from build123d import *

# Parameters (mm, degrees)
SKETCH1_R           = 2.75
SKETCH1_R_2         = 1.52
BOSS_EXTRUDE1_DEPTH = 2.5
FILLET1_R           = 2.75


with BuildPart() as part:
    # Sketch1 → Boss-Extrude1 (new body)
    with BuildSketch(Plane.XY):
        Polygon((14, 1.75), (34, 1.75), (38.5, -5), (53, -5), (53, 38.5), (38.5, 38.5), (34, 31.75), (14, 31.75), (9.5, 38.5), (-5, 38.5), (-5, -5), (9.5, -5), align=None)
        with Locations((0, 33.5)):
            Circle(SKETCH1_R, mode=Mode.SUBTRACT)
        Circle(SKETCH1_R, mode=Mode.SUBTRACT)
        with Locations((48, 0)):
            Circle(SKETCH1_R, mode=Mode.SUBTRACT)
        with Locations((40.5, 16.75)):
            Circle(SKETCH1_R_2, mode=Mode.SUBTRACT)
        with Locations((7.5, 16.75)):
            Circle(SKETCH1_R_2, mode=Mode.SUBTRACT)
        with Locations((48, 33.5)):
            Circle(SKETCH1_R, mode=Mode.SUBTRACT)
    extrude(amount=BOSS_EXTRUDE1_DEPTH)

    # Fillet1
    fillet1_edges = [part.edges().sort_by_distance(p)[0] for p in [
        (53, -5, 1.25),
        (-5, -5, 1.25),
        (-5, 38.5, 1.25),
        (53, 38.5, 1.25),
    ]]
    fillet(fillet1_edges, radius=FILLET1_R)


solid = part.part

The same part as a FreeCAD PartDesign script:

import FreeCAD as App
import Part
import Sketcher
from FreeCAD import Vector


def edges_at(feature, points):
    """Names of the edges that pass closest to the given points."""
    edges = feature.Shape.Edges
    near = lambda p: min(range(len(edges)), key=lambda i: edges[i].distToShape(Part.Vertex(*p))[0])
    return sorted({f"Edge{near(p) + 1}" for p in points})

doc = App.newDocument("Part")
params = doc.addObject("Spreadsheet::Sheet", "Params")
for row, (alias, value) in enumerate([
    ("sketch1_diameter", "5.5 mm"),
    ("sketch1_diameter2", "3.04 mm"),
    ("sketch1_width", "20 mm"),
    ("sketch1_width2", "14.5 mm"),
    ("sketch1_height", "43.5 mm"),
    ("pad1_length", "2.5 mm"),
    ("fillet_radius", "2.75 mm"),
], start=1):
    params.set(f"A{row}", alias)
    params.set(f"B{row}", "=" + value)
    params.setAlias(f"B{row}", alias)

body = doc.addObject("PartDesign::Body", "Body")

# Sketch on XY plane
sketch1 = doc.addObject("Sketcher::SketchObject", "Sketch")
body.addObject(sketch1)
sketch1.AttachmentSupport = (doc.XY_Plane, [""])
sketch1.MapMode = "FlatFace"
sketch1.addGeometry(Part.LineSegment(Vector(14, 1.75, 0), Vector(34, 1.75, 0)), False)
sketch1.addGeometry(Part.LineSegment(Vector(34, 1.75, 0), Vector(38.5, -5, 0)), False)
sketch1.addGeometry(Part.LineSegment(Vector(38.5, -5, 0), Vector(53, -5, 0)), False)
sketch1.addGeometry(Part.LineSegment(Vector(53, -5, 0), Vector(53, 38.5, 0)), False)
sketch1.addGeometry(Part.LineSegment(Vector(53, 38.5, 0), Vector(38.5, 38.5, 0)), False)
sketch1.addGeometry(Part.LineSegment(Vector(38.5, 38.5, 0), Vector(34, 31.75, 0)), False)
sketch1.addGeometry(Part.LineSegment(Vector(34, 31.75, 0), Vector(14, 31.75, 0)), False)
sketch1.addGeometry(Part.LineSegment(Vector(14, 31.75, 0), Vector(9.5, 38.5, 0)), False)
sketch1.addGeometry(Part.LineSegment(Vector(9.5, 38.5, 0), Vector(-5, 38.5, 0)), False)
sketch1.addGeometry(Part.LineSegment(Vector(-5, 38.5, 0), Vector(-5, -5, 0)), False)
sketch1.addGeometry(Part.LineSegment(Vector(-5, -5, 0), Vector(9.5, -5, 0)), False)
sketch1.addGeometry(Part.LineSegment(Vector(9.5, -5, 0), Vector(14, 1.75, 0)), False)
sketch1.addGeometry(Part.Circle(Vector(0, 0, 0), Vector(0, 0, 1), 2.75), False)
sketch1.addGeometry(Part.Circle(Vector(48, 0, 0), Vector(0, 0, 1), 2.75), False)
sketch1.addGeometry(Part.Circle(Vector(7.5, 16.75, 0), Vector(0, 0, 1), 1.52), False)
sketch1.addGeometry(Part.Circle(Vector(0, 33.5, 0), Vector(0, 0, 1), 2.75), False)
sketch1.addGeometry(Part.Circle(Vector(40.5, 16.75, 0), Vector(0, 0, 1), 1.52), False)
sketch1.addGeometry(Part.Circle(Vector(48, 33.5, 0), Vector(0, 0, 1), 2.75), False)
sketch1.addConstraint(Sketcher.Constraint("Coincident", 0, 2, 1, 1))
sketch1.addConstraint(Sketcher.Constraint("Coincident", 1, 2, 2, 1))
sketch1.addConstraint(Sketcher.Constraint("Coincident", 2, 2, 3, 1))
sketch1.addConstraint(Sketcher.Constraint("Coincident", 3, 2, 4, 1))
sketch1.addConstraint(Sketcher.Constraint("Coincident", 4, 2, 5, 1))
sketch1.addConstraint(Sketcher.Constraint("Coincident", 5, 2, 6, 1))
sketch1.addConstraint(Sketcher.Constraint("Coincident", 6, 2, 7, 1))
sketch1.addConstraint(Sketcher.Constraint("Coincident", 7, 2, 8, 1))
sketch1.addConstraint(Sketcher.Constraint("Coincident", 8, 2, 9, 1))
sketch1.addConstraint(Sketcher.Constraint("Coincident", 9, 2, 10, 1))
sketch1.addConstraint(Sketcher.Constraint("Coincident", 10, 2, 11, 1))
sketch1.addConstraint(Sketcher.Constraint("Coincident", 11, 2, 0, 1))
sketch1.addConstraint(Sketcher.Constraint("Horizontal", 0))
sketch1.addConstraint(Sketcher.Constraint("Horizontal", 2))
sketch1.addConstraint(Sketcher.Constraint("Vertical", 3))
sketch1.addConstraint(Sketcher.Constraint("Horizontal", 4))
sketch1.addConstraint(Sketcher.Constraint("Horizontal", 6))
sketch1.addConstraint(Sketcher.Constraint("Horizontal", 8))
sketch1.addConstraint(Sketcher.Constraint("Vertical", 9))
sketch1.addConstraint(Sketcher.Constraint("Horizontal", 10))
sketch1.addConstraint(Sketcher.Constraint("Coincident", 12, 3, -1, 1))
sketch1.addConstraint(Sketcher.Constraint("Equal", 12, 13))
sketch1.addConstraint(Sketcher.Constraint("Equal", 13, 15))
sketch1.addConstraint(Sketcher.Constraint("Equal", 14, 16))
sketch1.addConstraint(Sketcher.Constraint("Equal", 15, 17))
sketch1.addConstraint(Sketcher.Constraint("PointOnObject", 13, 3, -1))
sketch1.addConstraint(Sketcher.Constraint("PointOnObject", 15, 3, -2))
sketch1.addConstraint(Sketcher.Constraint("Parallel", 1, 7))
sketch1.addConstraint(Sketcher.Constraint("Parallel", 5, 11))
sketch1.addConstraint(Sketcher.Constraint("Horizontal", 14, 3, 16, 3))
sketch1.addConstraint(Sketcher.Constraint("Horizontal", 15, 3, 17, 3))
sketch1.addConstraint(Sketcher.Constraint("Horizontal", 4, 2, 7, 2))
sketch1.addConstraint(Sketcher.Constraint("Horizontal", 2, 2, 9, 2))
sketch1.addConstraint(Sketcher.Constraint("Vertical", 13, 3, 17, 3))
sketch1.addConstraint(Sketcher.Constraint("Vertical", 1, 2, 4, 2))
sketch1.addConstraint(Sketcher.Constraint("Vertical", 0, 2, 5, 2))
sketch1.addConstraint(Sketcher.Constraint("Vertical", 7, 2, 10, 2))
sketch1.addConstraint(Sketcher.Constraint("Vertical", 6, 2, 11, 2))
sketch1.addConstraint(Sketcher.Constraint("Equal", 4, 8))
sketch1.addConstraint(Sketcher.Constraint("Diameter", 12, 5.5))
sketch1.addConstraint(Sketcher.Constraint("Diameter", 14, 3.04))
sketch1.addConstraint(Sketcher.Constraint("DistanceX", 0, 1, 0, 2, 20.0))
sketch1.addConstraint(Sketcher.Constraint("DistanceX", 2, 1, 2, 2, 14.5))
sketch1.addConstraint(Sketcher.Constraint("DistanceY", 3, 1, 3, 2, 43.5))
sketch1.addConstraint(Sketcher.Constraint("DistanceX", -1, 1, 13, 3, 48.0))
sketch1.addConstraint(Sketcher.Constraint("DistanceX", -1, 1, 0, 2, 34.0))
sketch1.addConstraint(Sketcher.Constraint("DistanceY", 1, 2, -1, 1, 5.0))
sketch1.addConstraint(Sketcher.Constraint("DistanceX", -1, 1, 2, 2, 53.0))
sketch1.addConstraint(Sketcher.Constraint("DistanceX", 14, 3, 16, 3, 33.0))
sketch1.addConstraint(Sketcher.Constraint("DistanceY", 0, 2, 16, 3, 15.0))
sketch1.addConstraint(Sketcher.Constraint("DistanceX", 1, 2, 16, 3, 2.0))
sketch1.addConstraint(Sketcher.Constraint("DistanceY", 17, 3, 3, 2, 5.0))
sketch1.addConstraint(Sketcher.Constraint("DistanceY", 16, 3, 5, 2, 15.0))
sketch1.setExpression("Constraints[39]", "Params.sketch1_diameter")
sketch1.setExpression("Constraints[40]", "Params.sketch1_diameter2")
sketch1.setExpression("Constraints[41]", "Params.sketch1_width")
sketch1.setExpression("Constraints[42]", "Params.sketch1_width2")
sketch1.setExpression("Constraints[43]", "Params.sketch1_height")
pad1 = doc.addObject("PartDesign::Pad", "Pad")
body.addObject(pad1)
pad1.Profile = sketch1
pad1.setExpression("Length", "Params.pad1_length")
doc.recompute()

fillet = doc.addObject("PartDesign::Fillet", "Fillet")
body.addObject(fillet)
fillet.Base = (pad1, edges_at(pad1, [
    (53, -5, 1.25),
    (-5, -5, 1.25),
    (-5, 38.5, 1.25),
    (53, 38.5, 1.25),
]))
fillet.setExpression("Radius", "Params.fillet_radius")

doc.recompute()
